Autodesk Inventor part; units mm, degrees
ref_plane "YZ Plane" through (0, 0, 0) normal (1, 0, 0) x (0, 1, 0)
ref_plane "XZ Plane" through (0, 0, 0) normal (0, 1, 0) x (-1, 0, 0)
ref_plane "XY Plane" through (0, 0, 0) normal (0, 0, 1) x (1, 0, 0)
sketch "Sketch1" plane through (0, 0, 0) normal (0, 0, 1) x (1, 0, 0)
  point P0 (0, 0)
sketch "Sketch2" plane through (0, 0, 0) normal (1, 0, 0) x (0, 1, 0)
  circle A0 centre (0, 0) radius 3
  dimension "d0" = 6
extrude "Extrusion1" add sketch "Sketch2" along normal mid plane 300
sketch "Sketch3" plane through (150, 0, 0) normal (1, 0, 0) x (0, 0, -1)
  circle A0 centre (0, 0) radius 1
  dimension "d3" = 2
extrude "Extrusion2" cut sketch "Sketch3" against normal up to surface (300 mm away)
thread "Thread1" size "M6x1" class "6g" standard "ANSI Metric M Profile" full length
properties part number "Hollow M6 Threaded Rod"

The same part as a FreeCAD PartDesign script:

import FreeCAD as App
import Part
import Sketcher
Q = App.Units.Quantity

doc = App.newDocument("Part")
body = doc.addObject("PartDesign::Body", "Body")

sketch1 = doc.addObject("Sketcher::SketchObject", "Sketch")
body.addObject(sketch1)
sketch1.AttachmentSupport = (doc.YZ_Plane, [""])
sketch1.MapMode = "FlatFace"
sketch1.addGeometry(Part.Circle(App.Vector(0, 0, 0), App.Vector(0, 0, 1), 3), False)
sketch1.addConstraint(Sketcher.Constraint("Coincident", 0, 3, -1, 1))
sketch1.addConstraint(Sketcher.Constraint("Diameter", 0, Q("6 mm")))
pad1 = doc.addObject("PartDesign::Pad", "Pad")
body.addObject(pad1)
pad1.Profile = sketch1
pad1.Length = 300
pad1.Midplane = True

sketch2 = doc.addObject("Sketcher::SketchObject", "Sketch001")
body.addObject(sketch2)
sketch2.AttachmentSupport = (doc.YZ_Plane, [""])
sketch2.MapMode = "FlatFace"
sketch2.AttachmentOffset = App.Placement(App.Vector(0, 0, 150), App.Rotation())
sketch2.addGeometry(Part.Circle(App.Vector(0, 0, 0), App.Vector(0, 0, 1), 1), False)
sketch2.addConstraint(Sketcher.Constraint("Coincident", 0, 3, -1, 1))
sketch2.addConstraint(Sketcher.Constraint("Diameter", 0, Q("2 mm")))
pocket1 = doc.addObject("PartDesign::Pocket", "Pocket")
body.addObject(pocket1)
pocket1.Profile = sketch2
pocket1.Length = 300

doc.recompute()
